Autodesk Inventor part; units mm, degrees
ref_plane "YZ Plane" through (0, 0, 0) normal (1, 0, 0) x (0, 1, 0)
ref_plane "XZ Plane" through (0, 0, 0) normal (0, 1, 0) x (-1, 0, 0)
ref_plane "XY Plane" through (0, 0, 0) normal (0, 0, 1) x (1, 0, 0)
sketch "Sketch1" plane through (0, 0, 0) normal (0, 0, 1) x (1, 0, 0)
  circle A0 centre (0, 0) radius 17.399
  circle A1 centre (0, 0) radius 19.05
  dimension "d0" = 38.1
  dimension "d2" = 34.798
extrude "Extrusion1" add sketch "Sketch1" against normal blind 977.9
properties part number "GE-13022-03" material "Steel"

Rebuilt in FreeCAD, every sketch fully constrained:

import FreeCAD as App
import Part
import Sketcher
from FreeCAD import Vector
Q = App.Units.Quantity

doc = App.newDocument("Part")
body = doc.addObject("PartDesign::Body", "Body")

# Sketch on XY plane
sketch1 = body.newObject("Sketcher::SketchObject", "Sketch")
sketch1.AttachmentSupport = (doc.getObject("XY_Plane"), [""])
sketch1.MapMode = "FlatFace"
sketch1.addGeometry([
    Part.Circle(Vector(0, 0, 0), Vector(0, 0, 1), 19.05),
    Part.Circle(Vector(0, 0, 0), Vector(0, 0, 1), 17.399),
], False)
sketch1.addConstraint([
    Sketcher.Constraint("Coincident", 0, 3, -1, 1),
    Sketcher.Constraint("Coincident", 1, 3, -1, 1),
    Sketcher.Constraint("Diameter", 0, Q("1.5 in")),
    Sketcher.Constraint("Diameter", 1, Q("1.37 in")),
])
pad1 = body.newObject("PartDesign::Pad", "Pad")
pad1.Profile = sketch1
pad1.Length = Q("38.5 in")
pad1.Reversed = True

doc.recompute()
